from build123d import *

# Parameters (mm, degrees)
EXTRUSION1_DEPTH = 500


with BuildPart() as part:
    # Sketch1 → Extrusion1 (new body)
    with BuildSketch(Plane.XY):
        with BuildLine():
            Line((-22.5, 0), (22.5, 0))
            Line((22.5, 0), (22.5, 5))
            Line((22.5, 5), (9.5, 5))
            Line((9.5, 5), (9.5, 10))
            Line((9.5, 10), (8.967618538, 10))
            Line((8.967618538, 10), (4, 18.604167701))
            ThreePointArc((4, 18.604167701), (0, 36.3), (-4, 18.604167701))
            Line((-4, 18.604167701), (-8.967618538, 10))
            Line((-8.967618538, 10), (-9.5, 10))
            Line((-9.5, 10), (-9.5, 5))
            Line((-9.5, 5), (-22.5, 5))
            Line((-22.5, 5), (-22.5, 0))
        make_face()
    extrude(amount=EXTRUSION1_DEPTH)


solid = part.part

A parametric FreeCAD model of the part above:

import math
import FreeCAD as App
import Part
import Sketcher
from FreeCAD import Vector
Q = App.Units.Quantity

doc = App.newDocument("Part")
body = doc.addObject("PartDesign::Body", "Body")

# Sketch on XY plane
sketch1 = doc.addObject("Sketcher::SketchObject", "Sketch")
body.addObject(sketch1)
sketch1.AttachmentSupport = (doc.XY_Plane, [""])
sketch1.MapMode = "FlatFace"
sketch1.addGeometry(Part.LineSegment(Vector(-22.5, 0, 0), Vector(22.5, 0, 0)), False)
sketch1.addGeometry(Part.LineSegment(Vector(22.5, 0, 0), Vector(22.5, 5, 0)), False)
sketch1.addGeometry(Part.LineSegment(Vector(22.5, 5, 0), Vector(9.5, 5, 0)), False)
sketch1.addGeometry(Part.LineSegment(Vector(9.5, 5, 0), Vector(9.5, 10, 0)), False)
sketch1.addGeometry(Part.LineSegment(Vector(9.5, 10, 0), Vector(8.967619, 10, 0)), False)
sketch1.addGeometry(Part.LineSegment(Vector(8.967619, 10, 0), Vector(4, 18.604168, 0)), False)
sketch1.addGeometry(Part.ArcOfCircle(Part.Circle(Vector(0, 27, 0), Vector(0, 0, 1), 9.3), math.radians(-64.525616), math.radians(244.525616)), False)
sketch1.addGeometry(Part.LineSegment(Vector(-4, 18.604168, 0), Vector(-8.967619, 10, 0)), False)
sketch1.addGeometry(Part.LineSegment(Vector(-8.967619, 10, 0), Vector(-9.5, 10, 0)), False)
sketch1.addGeometry(Part.LineSegment(Vector(-9.5, 10, 0), Vector(-9.5, 5, 0)), False)
sketch1.addGeometry(Part.LineSegment(Vector(-9.5, 5, 0), Vector(-22.5, 5, 0)), False)
sketch1.addGeometry(Part.LineSegment(Vector(-22.5, 5, 0), Vector(-22.5, 0, 0)), False)
sketch1.addConstraint(Sketcher.Constraint("Coincident", 0, 2, 1, 1))
sketch1.addConstraint(Sketcher.Constraint("Coincident", 1, 2, 2, 1))
sketch1.addConstraint(Sketcher.Constraint("Coincident", 2, 2, 3, 1))
sketch1.addConstraint(Sketcher.Constraint("Coincident", 3, 2, 4, 1))
sketch1.addConstraint(Sketcher.Constraint("Coincident", 4, 2, 5, 1))
sketch1.addConstraint(Sketcher.Constraint("Coincident", 5, 2, 6, 1))
sketch1.addConstraint(Sketcher.Constraint("Coincident", 6, 2, 7, 1))
sketch1.addConstraint(Sketcher.Constraint("Coincident", 7, 2, 8, 1))
sketch1.addConstraint(Sketcher.Constraint("Coincident", 8, 2, 9, 1))
sketch1.addConstraint(Sketcher.Constraint("Coincident", 9, 2, 10, 1))
sketch1.addConstraint(Sketcher.Constraint("Coincident", 10, 2, 11, 1))
sketch1.addConstraint(Sketcher.Constraint("Coincident", 11, 2, 0, 1))
sketch1.addConstraint(Sketcher.Constraint("Horizontal", 0))
sketch1.addConstraint(Sketcher.Constraint("Vertical", 1))
sketch1.addConstraint(Sketcher.Constraint("Horizontal", 2))
sketch1.addConstraint(Sketcher.Constraint("Vertical", 3))
sketch1.addConstraint(Sketcher.Constraint("Horizontal", 4))
sketch1.addConstraint(Sketcher.Constraint("Horizontal", 8))
sketch1.addConstraint(Sketcher.Constraint("Vertical", 9))
sketch1.addConstraint(Sketcher.Constraint("Horizontal", 10))
sketch1.addConstraint(Sketcher.Constraint("Vertical", 11))
sketch1.addConstraint(Sketcher.Constraint("Symmetric", 0, 2, 11, 2, -1, 1))
sketch1.addConstraint(Sketcher.Constraint("Symmetric", 5, 2, 6, 2, -2))
sketch1.addConstraint(Sketcher.Constraint("Symmetric", 4, 2, 7, 2, -2))
sketch1.addConstraint(Sketcher.Constraint("Symmetric", 2, 2, 9, 2, -2))
sketch1.addConstraint(Sketcher.Constraint("Equal", 1, 3))
sketch1.addConstraint(Sketcher.Constraint("Radius", 6, 9.3))
sketch1.addConstraint(Sketcher.Constraint("DistanceX", 0, 1, 0, 2, 45.0))
sketch1.addConstraint(Sketcher.Constraint("DistanceX", 2, 2, 2, 1, 13.0))
sketch1.addConstraint(Sketcher.Constraint("DistanceY", 1, 1, 1, 2, 5.0))
sketch1.addConstraint(Sketcher.Constraint("Angle", 5, Q("120 deg")))
sketch1.addConstraint(Sketcher.Constraint("DistanceY", -1, 1, 6, 3, 27.0))
sketch1.addConstraint(Sketcher.Constraint("DistanceX", -1, 1, 5, 2, 4.0))
pad1 = doc.addObject("PartDesign::Pad", "Pad")
body.addObject(pad1)
pad1.Profile = sketch1
pad1.Length = 500

doc.recompute()
